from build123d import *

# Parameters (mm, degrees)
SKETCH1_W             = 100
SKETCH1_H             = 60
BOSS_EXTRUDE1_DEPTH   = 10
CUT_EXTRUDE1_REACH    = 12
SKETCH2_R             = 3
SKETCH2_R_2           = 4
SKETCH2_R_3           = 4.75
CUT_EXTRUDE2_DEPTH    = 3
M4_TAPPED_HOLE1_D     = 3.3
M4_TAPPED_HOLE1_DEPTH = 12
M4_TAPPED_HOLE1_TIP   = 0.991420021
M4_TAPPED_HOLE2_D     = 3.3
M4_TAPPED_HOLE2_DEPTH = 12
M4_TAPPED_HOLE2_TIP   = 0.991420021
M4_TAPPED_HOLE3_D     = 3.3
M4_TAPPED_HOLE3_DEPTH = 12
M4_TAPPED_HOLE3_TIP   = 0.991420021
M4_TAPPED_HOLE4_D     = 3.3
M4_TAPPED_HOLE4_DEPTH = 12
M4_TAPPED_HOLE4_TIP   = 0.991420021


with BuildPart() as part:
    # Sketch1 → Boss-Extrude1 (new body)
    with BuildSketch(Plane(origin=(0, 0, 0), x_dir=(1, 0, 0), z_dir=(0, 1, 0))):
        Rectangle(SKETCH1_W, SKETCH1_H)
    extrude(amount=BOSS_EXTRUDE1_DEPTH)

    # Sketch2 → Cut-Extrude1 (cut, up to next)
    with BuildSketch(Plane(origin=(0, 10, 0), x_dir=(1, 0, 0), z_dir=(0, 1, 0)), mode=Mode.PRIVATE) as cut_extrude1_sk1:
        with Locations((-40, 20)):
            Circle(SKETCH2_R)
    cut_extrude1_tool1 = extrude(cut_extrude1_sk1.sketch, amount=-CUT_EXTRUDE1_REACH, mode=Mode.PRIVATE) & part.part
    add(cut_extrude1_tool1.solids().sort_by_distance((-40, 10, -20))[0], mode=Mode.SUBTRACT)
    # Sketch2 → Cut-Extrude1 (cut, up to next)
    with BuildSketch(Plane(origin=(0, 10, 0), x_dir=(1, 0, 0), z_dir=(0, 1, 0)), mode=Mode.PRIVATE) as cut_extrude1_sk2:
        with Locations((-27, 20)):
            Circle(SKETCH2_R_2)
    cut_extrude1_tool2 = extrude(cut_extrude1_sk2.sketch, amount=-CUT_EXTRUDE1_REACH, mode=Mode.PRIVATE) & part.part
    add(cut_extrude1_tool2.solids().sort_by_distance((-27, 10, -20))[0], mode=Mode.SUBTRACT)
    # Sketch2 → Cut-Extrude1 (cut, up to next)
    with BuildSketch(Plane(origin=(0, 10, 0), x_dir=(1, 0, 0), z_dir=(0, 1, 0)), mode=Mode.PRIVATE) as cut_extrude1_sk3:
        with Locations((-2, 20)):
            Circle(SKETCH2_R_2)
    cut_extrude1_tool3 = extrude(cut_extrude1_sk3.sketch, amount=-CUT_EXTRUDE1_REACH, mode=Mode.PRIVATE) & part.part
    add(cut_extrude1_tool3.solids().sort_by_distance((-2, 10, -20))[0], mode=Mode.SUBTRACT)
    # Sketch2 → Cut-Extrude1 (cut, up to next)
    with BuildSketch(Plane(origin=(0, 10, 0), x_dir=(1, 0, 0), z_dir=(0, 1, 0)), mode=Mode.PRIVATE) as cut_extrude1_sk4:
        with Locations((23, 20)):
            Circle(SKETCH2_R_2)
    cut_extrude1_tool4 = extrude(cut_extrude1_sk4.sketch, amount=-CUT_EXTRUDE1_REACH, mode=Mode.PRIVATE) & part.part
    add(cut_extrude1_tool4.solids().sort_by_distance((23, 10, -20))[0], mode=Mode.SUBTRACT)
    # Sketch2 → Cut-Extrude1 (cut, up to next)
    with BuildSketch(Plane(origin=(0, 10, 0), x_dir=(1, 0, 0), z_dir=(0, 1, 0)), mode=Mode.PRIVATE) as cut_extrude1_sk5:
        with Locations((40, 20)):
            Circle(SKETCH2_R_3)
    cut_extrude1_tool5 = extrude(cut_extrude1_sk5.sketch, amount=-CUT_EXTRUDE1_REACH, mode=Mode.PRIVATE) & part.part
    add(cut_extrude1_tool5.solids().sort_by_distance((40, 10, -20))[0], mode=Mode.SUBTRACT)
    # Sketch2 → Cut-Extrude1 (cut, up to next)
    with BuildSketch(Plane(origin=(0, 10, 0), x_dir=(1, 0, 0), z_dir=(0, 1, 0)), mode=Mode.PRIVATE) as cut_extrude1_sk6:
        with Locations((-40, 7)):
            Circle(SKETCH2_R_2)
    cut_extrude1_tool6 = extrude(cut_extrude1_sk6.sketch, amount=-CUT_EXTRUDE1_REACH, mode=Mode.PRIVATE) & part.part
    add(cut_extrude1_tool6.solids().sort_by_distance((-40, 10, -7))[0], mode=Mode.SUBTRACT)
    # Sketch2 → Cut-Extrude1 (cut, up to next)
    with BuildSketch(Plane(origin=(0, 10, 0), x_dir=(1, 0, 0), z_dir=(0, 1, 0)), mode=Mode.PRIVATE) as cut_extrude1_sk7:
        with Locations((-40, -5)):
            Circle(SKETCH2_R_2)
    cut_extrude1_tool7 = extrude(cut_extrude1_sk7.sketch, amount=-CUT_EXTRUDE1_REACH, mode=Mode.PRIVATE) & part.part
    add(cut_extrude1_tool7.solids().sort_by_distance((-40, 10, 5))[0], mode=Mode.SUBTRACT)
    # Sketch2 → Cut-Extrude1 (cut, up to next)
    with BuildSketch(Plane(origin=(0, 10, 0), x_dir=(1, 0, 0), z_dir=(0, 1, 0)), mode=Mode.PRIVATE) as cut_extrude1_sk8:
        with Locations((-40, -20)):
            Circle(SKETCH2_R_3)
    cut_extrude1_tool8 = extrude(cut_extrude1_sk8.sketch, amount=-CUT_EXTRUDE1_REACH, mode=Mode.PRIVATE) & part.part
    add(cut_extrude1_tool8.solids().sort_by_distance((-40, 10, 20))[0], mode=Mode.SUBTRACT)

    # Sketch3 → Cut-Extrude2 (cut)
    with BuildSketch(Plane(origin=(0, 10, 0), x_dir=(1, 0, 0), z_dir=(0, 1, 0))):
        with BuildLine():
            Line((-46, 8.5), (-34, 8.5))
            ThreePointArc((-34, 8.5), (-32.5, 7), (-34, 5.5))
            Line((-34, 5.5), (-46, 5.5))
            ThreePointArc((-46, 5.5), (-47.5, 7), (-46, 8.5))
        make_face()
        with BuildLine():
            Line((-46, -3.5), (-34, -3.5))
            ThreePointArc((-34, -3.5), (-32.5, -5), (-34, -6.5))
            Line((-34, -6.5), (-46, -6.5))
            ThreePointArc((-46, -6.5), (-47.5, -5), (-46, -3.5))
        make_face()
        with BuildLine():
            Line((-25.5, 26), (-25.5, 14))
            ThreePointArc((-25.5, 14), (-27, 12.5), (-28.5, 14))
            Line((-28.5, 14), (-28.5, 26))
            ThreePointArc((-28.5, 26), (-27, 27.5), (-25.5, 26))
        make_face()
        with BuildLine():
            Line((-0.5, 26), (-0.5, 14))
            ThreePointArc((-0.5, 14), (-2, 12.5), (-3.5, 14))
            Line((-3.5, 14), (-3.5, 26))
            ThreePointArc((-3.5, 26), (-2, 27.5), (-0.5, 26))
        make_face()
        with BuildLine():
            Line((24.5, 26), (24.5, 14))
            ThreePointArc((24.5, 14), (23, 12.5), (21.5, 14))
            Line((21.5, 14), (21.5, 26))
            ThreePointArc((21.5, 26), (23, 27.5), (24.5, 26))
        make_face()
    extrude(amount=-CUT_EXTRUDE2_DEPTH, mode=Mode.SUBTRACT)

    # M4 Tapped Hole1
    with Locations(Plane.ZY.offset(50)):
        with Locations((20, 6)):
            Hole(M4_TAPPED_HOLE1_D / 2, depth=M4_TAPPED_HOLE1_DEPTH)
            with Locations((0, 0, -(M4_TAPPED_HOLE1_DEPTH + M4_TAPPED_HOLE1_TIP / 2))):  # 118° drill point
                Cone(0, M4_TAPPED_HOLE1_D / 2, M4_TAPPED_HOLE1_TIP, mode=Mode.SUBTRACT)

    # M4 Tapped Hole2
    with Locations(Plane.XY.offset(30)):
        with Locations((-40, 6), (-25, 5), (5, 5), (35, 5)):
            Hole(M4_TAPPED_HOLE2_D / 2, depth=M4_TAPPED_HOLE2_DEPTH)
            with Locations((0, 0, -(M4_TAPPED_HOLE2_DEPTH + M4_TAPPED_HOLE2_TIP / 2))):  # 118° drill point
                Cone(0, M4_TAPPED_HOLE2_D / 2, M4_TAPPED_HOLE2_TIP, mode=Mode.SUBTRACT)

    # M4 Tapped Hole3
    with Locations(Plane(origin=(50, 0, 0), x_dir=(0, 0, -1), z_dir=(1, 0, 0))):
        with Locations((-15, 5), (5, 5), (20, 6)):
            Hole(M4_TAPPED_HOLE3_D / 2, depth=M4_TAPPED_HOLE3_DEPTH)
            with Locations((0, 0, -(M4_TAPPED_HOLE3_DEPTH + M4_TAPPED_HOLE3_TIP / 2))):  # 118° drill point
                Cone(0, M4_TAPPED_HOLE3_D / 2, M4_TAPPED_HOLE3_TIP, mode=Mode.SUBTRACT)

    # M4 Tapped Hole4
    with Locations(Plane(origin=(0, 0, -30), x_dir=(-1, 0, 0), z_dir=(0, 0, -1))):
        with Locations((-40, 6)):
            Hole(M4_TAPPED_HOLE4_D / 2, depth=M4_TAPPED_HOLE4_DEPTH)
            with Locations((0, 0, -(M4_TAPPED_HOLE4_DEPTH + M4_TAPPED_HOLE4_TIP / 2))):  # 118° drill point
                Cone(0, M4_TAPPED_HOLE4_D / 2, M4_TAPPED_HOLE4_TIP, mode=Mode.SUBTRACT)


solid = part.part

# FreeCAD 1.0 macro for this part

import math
import FreeCAD as App
import Part
import Sketcher


def add_polygon(sketch, points):
    """Adds a closed chain of lines whose ends are joined by coincident constraints."""
    first, n = sketch.GeometryCount, len(points)
    for a, b in zip(points, points[1:] + points[:1]):
        sketch.addGeometry(Part.LineSegment(App.Vector(*a, 0), App.Vector(*b, 0)), False)
    for i in range(n):
        sketch.addConstraint(Sketcher.Constraint("Coincident", first + i, 2, first + (i + 1) % n, 1))

doc = App.newDocument("Part")
body = doc.addObject("PartDesign::Body", "Body")

# Sketch on XZ plane
sketch1 = doc.addObject("Sketcher::SketchObject", "Sketch")
body.addObject(sketch1)
sketch1.AttachmentSupport = (doc.XZ_Plane, [""])
sketch1.MapMode = "FlatFace"
add_polygon(sketch1, [(-50, -30), (-50, 30), (50, 30), (50, -30)])  # lines 0-3
sketch1.addConstraint(Sketcher.Constraint("Vertical", 0))
sketch1.addConstraint(Sketcher.Constraint("Horizontal", 1))
sketch1.addConstraint(Sketcher.Constraint("Vertical", 2))
sketch1.addConstraint(Sketcher.Constraint("Horizontal", 3))
sketch1.addConstraint(Sketcher.Constraint("Symmetric", 0, 2, 2, 2, -1, 1))
sketch1.addConstraint(Sketcher.Constraint("DistanceX", 1, 1, 1, 2, 100.0))
sketch1.addConstraint(Sketcher.Constraint("DistanceY", 0, 1, 0, 2, 60.0))
pad1 = doc.addObject("PartDesign::Pad", "Pad")
body.addObject(pad1)
pad1.Profile = sketch1
pad1.Length = 10
pad1.Reversed = True

# Sketch on XZ plane
sketch2 = doc.addObject("Sketcher::SketchObject", "Sketch001")
body.addObject(sketch2)
sketch2.AttachmentSupport = (doc.XZ_Plane, [""])
sketch2.MapMode = "FlatFace"
sketch2.AttachmentOffset = App.Placement(App.Vector(0, 0, -10), App.Rotation())
sketch2.addGeometry(Part.Circle(App.Vector(-40, -20, 0), App.Vector(0, 0, 1), 3), False)
sketch2.addConstraint(Sketcher.Constraint("Diameter", 0, 6.0))
sketch2.addConstraint(Sketcher.Constraint("DistanceX", 0, 3, -1, 1, 40.0))
sketch2.addConstraint(Sketcher.Constraint("DistanceY", 0, 3, -1, 1, 20.0))
pocket1 = doc.addObject("PartDesign::Pocket", "Pocket")
body.addObject(pocket1)
pocket1.Profile = sketch2
pocket1.Type = "UpToFirst"
pocket1.Reversed = True

# Sketch on XZ plane
sketch3 = doc.addObject("Sketcher::SketchObject", "Sketch002")
body.addObject(sketch3)
sketch3.AttachmentSupport = (doc.XZ_Plane, [""])
sketch3.MapMode = "FlatFace"
sketch3.AttachmentOffset = App.Placement(App.Vector(0, 0, -10), App.Rotation())
sketch3.addGeometry(Part.Circle(App.Vector(-27, -20, 0), App.Vector(0, 0, 1), 4), False)
sketch3.addConstraint(Sketcher.Constraint("Diameter", 0, 8.0))
sketch3.addConstraint(Sketcher.Constraint("DistanceX", 0, 3, -1, 1, 27.0))
sketch3.addConstraint(Sketcher.Constraint("DistanceY", 0, 3, -1, 1, 20.0))
pocket2 = doc.addObject("PartDesign::Pocket", "Pocket001")
body.addObject(pocket2)
pocket2.Profile = sketch3
pocket2.Type = "UpToFirst"
pocket2.Reversed = True

# Sketch on XZ plane
sketch4 = doc.addObject("Sketcher::SketchObject", "Sketch003")
body.addObject(sketch4)
sketch4.AttachmentSupport = (doc.XZ_Plane, [""])
sketch4.MapMode = "FlatFace"
sketch4.AttachmentOffset = App.Placement(App.Vector(0, 0, -10), App.Rotation())
sketch4.addGeometry(Part.Circle(App.Vector(-2, -20, 0), App.Vector(0, 0, 1), 4), False)
sketch4.addConstraint(Sketcher.Constraint("Diameter", 0, 8.0))
sketch4.addConstraint(Sketcher.Constraint("DistanceX", 0, 3, -1, 1, 2.0))
sketch4.addConstraint(Sketcher.Constraint("DistanceY", 0, 3, -1, 1, 20.0))
pocket3 = doc.addObject("PartDesign::Pocket", "Pocket002")
body.addObject(pocket3)
pocket3.Profile = sketch4
pocket3.Type = "UpToFirst"
pocket3.Reversed = True

# Sketch on XZ plane
sketch5 = doc.addObject("Sketcher::SketchObject", "Sketch004")
body.addObject(sketch5)
sketch5.AttachmentSupport = (doc.XZ_Plane, [""])
sketch5.MapMode = "FlatFace"
sketch5.AttachmentOffset = App.Placement(App.Vector(0, 0, -10), App.Rotation())
sketch5.addGeometry(Part.Circle(App.Vector(23, -20, 0), App.Vector(0, 0, 1), 4), False)
sketch5.addConstraint(Sketcher.Constraint("Diameter", 0, 8.0))
sketch5.addConstraint(Sketcher.Constraint("DistanceX", -1, 1, 0, 3, 23.0))
sketch5.addConstraint(Sketcher.Constraint("DistanceY", 0, 3, -1, 1, 20.0))
pocket4 = doc.addObject("PartDesign::Pocket", "Pocket003")
body.addObject(pocket4)
pocket4.Profile = sketch5
pocket4.Type = "UpToFirst"
pocket4.Reversed = True

# Sketch on XZ plane
sketch6 = doc.addObject("Sketcher::SketchObject", "Sketch005")
body.addObject(sketch6)
sketch6.AttachmentSupport = (doc.XZ_Plane, [""])
sketch6.MapMode = "FlatFace"
sketch6.AttachmentOffset = App.Placement(App.Vector(0, 0, -10), App.Rotation())
sketch6.addGeometry(Part.Circle(App.Vector(40, -20, 0), App.Vector(0, 0, 1), 4.8), False)
sketch6.addConstraint(Sketcher.Constraint("Diameter", 0, 9.5))
sketch6.addConstraint(Sketcher.Constraint("DistanceX", -1, 1, 0, 3, 40.0))
sketch6.addConstraint(Sketcher.Constraint("DistanceY", 0, 3, -1, 1, 20.0))
pocket5 = doc.addObject("PartDesign::Pocket", "Pocket004")
body.addObject(pocket5)
pocket5.Profile = sketch6
pocket5.Type = "UpToFirst"
pocket5.Reversed = True

# Sketch on XZ plane
sketch7 = doc.addObject("Sketcher::SketchObject", "Sketch006")
body.addObject(sketch7)
sketch7.AttachmentSupport = (doc.XZ_Plane, [""])
sketch7.MapMode = "FlatFace"
sketch7.AttachmentOffset = App.Placement(App.Vector(0, 0, -10), App.Rotation())
sketch7.addGeometry(Part.Circle(App.Vector(-40, -7, 0), App.Vector(0, 0, 1), 4), False)
sketch7.addConstraint(Sketcher.Constraint("Diameter", 0, 8.0))
sketch7.addConstraint(Sketcher.Constraint("DistanceX", 0, 3, -1, 1, 40.0))
sketch7.addConstraint(Sketcher.Constraint("DistanceY", 0, 3, -1, 1, 7.0))
pocket6 = doc.addObject("PartDesign::Pocket", "Pocket005")
body.addObject(pocket6)
pocket6.Profile = sketch7
pocket6.Type = "UpToFirst"
pocket6.Reversed = True

# Sketch on XZ plane
sketch8 = doc.addObject("Sketcher::SketchObject", "Sketch007")
body.addObject(sketch8)
sketch8.AttachmentSupport = (doc.XZ_Plane, [""])
sketch8.MapMode = "FlatFace"
sketch8.AttachmentOffset = App.Placement(App.Vector(0, 0, -10), App.Rotation())
sketch8.addGeometry(Part.Circle(App.Vector(-40, 5, 0), App.Vector(0, 0, 1), 4), False)
sketch8.addConstraint(Sketcher.Constraint("Diameter", 0, 8.0))
sketch8.addConstraint(Sketcher.Constraint("DistanceX", 0, 3, -1, 1, 40.0))
sketch8.addConstraint(Sketcher.Constraint("DistanceY", -1, 1, 0, 3, 5.0))
pocket7 = doc.addObject("PartDesign::Pocket", "Pocket006")
body.addObject(pocket7)
pocket7.Profile = sketch8
pocket7.Type = "UpToFirst"
pocket7.Reversed = True

# Sketch on XZ plane
sketch9 = doc.addObject("Sketcher::SketchObject", "Sketch008")
body.addObject(sketch9)
sketch9.AttachmentSupport = (doc.XZ_Plane, [""])
sketch9.MapMode = "FlatFace"
sketch9.AttachmentOffset = App.Placement(App.Vector(0, 0, -10), App.Rotation())
sketch9.addGeometry(Part.Circle(App.Vector(-40, 20, 0), App.Vector(0, 0, 1), 4.8), False)
sketch9.addConstraint(Sketcher.Constraint("Diameter", 0, 9.5))
sketch9.addConstraint(Sketcher.Constraint("DistanceX", 0, 3, -1, 1, 40.0))
sketch9.addConstraint(Sketcher.Constraint("DistanceY", -1, 1, 0, 3, 20.0))
pocket8 = doc.addObject("PartDesign::Pocket", "Pocket007")
body.addObject(pocket8)
pocket8.Profile = sketch9
pocket8.Type = "UpToFirst"
pocket8.Reversed = True

# Sketch on XZ plane
sketch10 = doc.addObject("Sketcher::SketchObject", "Sketch009")
body.addObject(sketch10)
sketch10.AttachmentSupport = (doc.XZ_Plane, [""])
sketch10.MapMode = "FlatFace"
sketch10.AttachmentOffset = App.Placement(App.Vector(0, 0, -10), App.Rotation())
sketch10.addGeometry(Part.LineSegment(App.Vector(-34, -8.5, 0), App.Vector(-46, -8.5, 0)), False)
sketch10.addGeometry(Part.ArcOfCircle(Part.Circle(App.Vector(-46, -7, 0), App.Vector(0, 0, 1), 1.5), math.radians(90), math.radians(270)), False)
sketch10.addGeometry(Part.LineSegment(App.Vector(-46, -5.5, 0), App.Vector(-34, -5.5, 0)), False)
sketch10.addGeometry(Part.ArcOfCircle(Part.Circle(App.Vector(-34, -7, 0), App.Vector(0, 0, 1), 1.5), math.radians(-90), math.radians(90)), False)
sketch10.addGeometry(Part.LineSegment(App.Vector(-34, 3.5, 0), App.Vector(-46, 3.5, 0)), False)
sketch10.addGeometry(Part.ArcOfCircle(Part.Circle(App.Vector(-46, 5, 0), App.Vector(0, 0, 1), 1.5), math.radians(90), math.radians(270)), False)
sketch10.addGeometry(Part.LineSegment(App.Vector(-46, 6.5, 0), App.Vector(-34, 6.5, 0)), False)
sketch10.addGeometry(Part.ArcOfCircle(Part.Circle(App.Vector(-34, 5, 0), App.Vector(0, 0, 1), 1.5), math.radians(-90), math.radians(90)), False)
sketch10.addGeometry(Part.LineSegment(App.Vector(-25.5, -14, 0), App.Vector(-25.5, -26, 0)), False)
sketch10.addGeometry(Part.ArcOfCircle(Part.Circle(App.Vector(-27, -26, 0), App.Vector(0, 0, 1), 1.5), math.radians(180), math.radians(360)), False)
sketch10.addGeometry(Part.LineSegment(App.Vector(-28.5, -26, 0), App.Vector(-28.5, -14, 0)), False)
sketch10.addGeometry(Part.ArcOfCircle(Part.Circle(App.Vector(-27, -14, 0), App.Vector(0, 0, 1), 1.5), math.radians(0), math.radians(180)), False)
sketch10.addGeometry(Part.LineSegment(App.Vector(-0.5, -14, 0), App.Vector(-0.5, -26, 0)), False)
sketch10.addGeometry(Part.ArcOfCircle(Part.Circle(App.Vector(-2, -26, 0), App.Vector(0, 0, 1), 1.5), math.radians(180), math.radians(360)), False)
sketch10.addGeometry(Part.LineSegment(App.Vector(-3.5, -26, 0), App.Vector(-3.5, -14, 0)), False)
sketch10.addGeometry(Part.ArcOfCircle(Part.Circle(App.Vector(-2, -14, 0), App.Vector(0, 0, 1), 1.5), math.radians(0), math.radians(180)), False)
sketch10.addGeometry(Part.LineSegment(App.Vector(24.5, -14, 0), App.Vector(24.5, -26, 0)), False)
sketch10.addGeometry(Part.ArcOfCircle(Part.Circle(App.Vector(23, -26, 0), App.Vector(0, 0, 1), 1.5), math.radians(180), math.radians(360)), False)
sketch10.addGeometry(Part.LineSegment(App.Vector(21.5, -26, 0), App.Vector(21.5, -14, 0)), False)
sketch10.addGeometry(Part.ArcOfCircle(Part.Circle(App.Vector(23, -14, 0), App.Vector(0, 0, 1), 1.5), math.radians(0), math.radians(180)), False)
sketch10.addConstraint(Sketcher.Constraint("Tangent", 0, 2, 1, 2))
sketch10.addConstraint(Sketcher.Constraint("Tangent", 1, 1, 2, 1))
sketch10.addConstraint(Sketcher.Constraint("Tangent", 2, 2, 3, 2))
sketch10.addConstraint(Sketcher.Constraint("Tangent", 3, 1, 0, 1))
sketch10.addConstraint(Sketcher.Constraint("Tangent", 4, 2, 5, 2))
sketch10.addConstraint(Sketcher.Constraint("Tangent", 5, 1, 6, 1))
sketch10.addConstraint(Sketcher.Constraint("Tangent", 6, 2, 7, 2))
sketch10.addConstraint(Sketcher.Constraint("Tangent", 7, 1, 4, 1))
sketch10.addConstraint(Sketcher.Constraint("Tangent", 8, 2, 9, 2))
sketch10.addConstraint(Sketcher.Constraint("Tangent", 9, 1, 10, 1))
sketch10.addConstraint(Sketcher.Constraint("Tangent", 10, 2, 11, 2))
sketch10.addConstraint(Sketcher.Constraint("Tangent", 11, 1, 8, 1))
sketch10.addConstraint(Sketcher.Constraint("Tangent", 12, 2, 13, 2))
sketch10.addConstraint(Sketcher.Constraint("Tangent", 13, 1, 14, 1))
sketch10.addConstraint(Sketcher.Constraint("Tangent", 14, 2, 15, 2))
sketch10.addConstraint(Sketcher.Constraint("Tangent", 15, 1, 12, 1))
sketch10.addConstraint(Sketcher.Constraint("Tangent", 16, 2, 17, 2))
sketch10.addConstraint(Sketcher.Constraint("Tangent", 17, 1, 18, 1))
sketch10.addConstraint(Sketcher.Constraint("Tangent", 18, 2, 19, 2))
sketch10.addConstraint(Sketcher.Constraint("Tangent", 19, 1, 16, 1))
sketch10.addConstraint(Sketcher.Constraint("Horizontal", 0))
sketch10.addConstraint(Sketcher.Constraint("Horizontal", 2))
sketch10.addConstraint(Sketcher.Constraint("Horizontal", 4))
sketch10.addConstraint(Sketcher.Constraint("Horizontal", 6))
sketch10.addConstraint(Sketcher.Constraint("Vertical", 8))
sketch10.addConstraint(Sketcher.Constraint("Vertical", 10))
sketch10.addConstraint(Sketcher.Constraint("Vertical", 12))
sketch10.addConstraint(Sketcher.Constraint("Vertical", 14))
sketch10.addConstraint(Sketcher.Constraint("Vertical", 16))
sketch10.addConstraint(Sketcher.Constraint("Vertical", 18))
sketch10.addConstraint(Sketcher.Constraint("Equal", 3, 5))
sketch10.addConstraint(Sketcher.Constraint("Equal", 7, 9))
sketch10.addConstraint(Sketcher.Constraint("Equal", 11, 13))
sketch10.addConstraint(Sketcher.Constraint("Equal", 15, 17))
sketch10.addConstraint(Sketcher.Constraint("Horizontal", 9, 3, 13, 3))
sketch10.addConstraint(Sketcher.Constraint("Horizontal", 11, 3, 15, 3))
sketch10.addConstraint(Sketcher.Constraint("Horizontal", 13, 3, 17, 3))
sketch10.addConstraint(Sketcher.Constraint("Horizontal", 15, 3, 19, 3))
sketch10.addConstraint(Sketcher.Constraint("Vertical", 1, 3, 5, 3))
sketch10.addConstraint(Sketcher.Constraint("Vertical", 3, 3, 7, 3))
sketch10.addConstraint(Sketcher.Constraint("Equal", 6, 8))
sketch10.addConstraint(Sketcher.Constraint("Radius", 1, 1.5))
sketch10.addConstraint(Sketcher.Constraint("DistanceX", 0, 2, 0, 1, 12.0))
sketch10.addConstraint(Sketcher.Constraint("DistanceX", 1, 3, -1, 1, 46.0))
sketch10.addConstraint(Sketcher.Constraint("DistanceY", 1, 3, -1, 1, 7.0))
sketch10.addConstraint(Sketcher.Constraint("DistanceY", -1, 1, 5, 3, 5.0))
sketch10.addConstraint(Sketcher.Constraint("DistanceX", 9, 3, -1, 1, 27.0))
sketch10.addConstraint(Sketcher.Constraint("DistanceY", 9, 3, -1, 1, 26.0))
sketch10.addConstraint(Sketcher.Constraint("DistanceX", 13, 3, -1, 1, 2.0))
sketch10.addConstraint(Sketcher.Constraint("DistanceX", -1, 1, 17, 3, 23.0))
pocket9 = doc.addObject("PartDesign::Pocket", "Pocket008")
body.addObject(pocket9)
pocket9.Profile = sketch10
pocket9.Length = 3
pocket9.Reversed = True

# Sketch on YZ plane
sketch11 = doc.addObject("Sketcher::SketchObject", "Sketch010")
body.addObject(sketch11)
sketch11.AttachmentSupport = (doc.YZ_Plane, [""])
sketch11.MapMode = "FlatFace"
sketch11.AttachmentOffset = App.Placement(App.Vector(0, 0, -50), App.Rotation())
sketch11.addGeometry(Part.Circle(App.Vector(6, 20, 0), App.Vector(0, 0, 1), 1.6), False)
sketch11.addConstraint(Sketcher.Constraint("Diameter", 0, 3.3))
sketch11.addConstraint(Sketcher.Constraint("DistanceX", -1, 1, 0, 3, 6.0))
sketch11.addConstraint(Sketcher.Constraint("DistanceY", -1, 1, 0, 3, 20.0))
doc.recompute()
hole = doc.addObject("PartDesign::Hole", "Hole")
body.addObject(hole)
hole.Profile = sketch11
hole.ThreadType = "None"
hole.Diameter = 3.3
hole.DepthType = "Dimension"
hole.Depth = 12
hole.DrillPoint = "Angled"
hole.DrillPointAngle = 118
hole.Reversed = True

# Sketch on XY plane
sketch12 = doc.addObject("Sketcher::SketchObject", "Sketch011")
body.addObject(sketch12)
sketch12.AttachmentSupport = (doc.XY_Plane, [""])
sketch12.MapMode = "FlatFace"
sketch12.AttachmentOffset = App.Placement(App.Vector(0, 0, 30), App.Rotation())
sketch12.addGeometry(Part.Circle(App.Vector(-40, 6, 0), App.Vector(0, 0, 1), 1.6), False)
sketch12.addGeometry(Part.Circle(App.Vector(-25, 5, 0), App.Vector(0, 0, 1), 1.6), False)
sketch12.addGeometry(Part.Circle(App.Vector(5, 5, 0), App.Vector(0, 0, 1), 1.6), False)
sketch12.addGeometry(Part.Circle(App.Vector(35, 5, 0), App.Vector(0, 0, 1), 1.6), False)
sketch12.addConstraint(Sketcher.Constraint("Equal", 0, 1))
sketch12.addConstraint(Sketcher.Constraint("Equal", 1, 2))
sketch12.addConstraint(Sketcher.Constraint("Equal", 2, 3))
sketch12.addConstraint(Sketcher.Constraint("Horizontal", 1, 3, 2, 3))
sketch12.addConstraint(Sketcher.Constraint("Horizontal", 2, 3, 3, 3))
sketch12.addConstraint(Sketcher.Constraint("Diameter", 0, 3.3))
sketch12.addConstraint(Sketcher.Constraint("DistanceX", 0, 3, -1, 1, 40.0))
sketch12.addConstraint(Sketcher.Constraint("DistanceY", -1, 1, 0, 3, 6.0))
sketch12.addConstraint(Sketcher.Constraint("DistanceX", 1, 3, -1, 1, 25.0))
sketch12.addConstraint(Sketcher.Constraint("DistanceY", -1, 1, 1, 3, 5.0))
sketch12.addConstraint(Sketcher.Constraint("DistanceX", -1, 1, 2, 3, 5.0))
sketch12.addConstraint(Sketcher.Constraint("DistanceX", -1, 1, 3, 3, 35.0))
doc.recompute()
hole2 = doc.addObject("PartDesign::Hole", "Hole001")
body.addObject(hole2)
hole2.Profile = sketch12
hole2.ThreadType = "None"
hole2.Diameter = 3.3
hole2.DepthType = "Dimension"
hole2.Depth = 12
hole2.DrillPoint = "Angled"
hole2.DrillPointAngle = 118

# Sketch on YZ plane
sketch13 = doc.addObject("Sketcher::SketchObject", "Sketch012")
body.addObject(sketch13)
sketch13.AttachmentSupport = (doc.YZ_Plane, [""])
sketch13.MapMode = "FlatFace"
sketch13.AttachmentOffset = App.Placement(App.Vector(0, 0, 50), App.Rotation())
sketch13.addGeometry(Part.Circle(App.Vector(5, 15, 0), App.Vector(0, 0, 1), 1.6), False)
sketch13.addGeometry(Part.Circle(App.Vector(5, -5, 0), App.Vector(0, 0, 1), 1.6), False)
sketch13.addGeometry(Part.Circle(App.Vector(6, -20, 0), App.Vector(0, 0, 1), 1.6), False)
sketch13.addConstraint(Sketcher.Constraint("Equal", 0, 1))
sketch13.addConstraint(Sketcher.Constraint("Equal", 1, 2))
sketch13.addConstraint(Sketcher.Constraint("Vertical", 0, 3, 1, 3))
sketch13.addConstraint(Sketcher.Constraint("Diameter", 0, 3.3))
sketch13.addConstraint(Sketcher.Constraint("DistanceX", -1, 1, 0, 3, 5.0))
sketch13.addConstraint(Sketcher.Constraint("DistanceY", -1, 1, 0, 3, 15.0))
sketch13.addConstraint(Sketcher.Constraint("DistanceY", 1, 3, -1, 1, 5.0))
sketch13.addConstraint(Sketcher.Constraint("DistanceX", -1, 1, 2, 3, 6.0))
sketch13.addConstraint(Sketcher.Constraint("DistanceY", 2, 3, -1, 1, 20.0))
doc.recompute()
hole3 = doc.addObject("PartDesign::Hole", "Hole002")
body.addObject(hole3)
hole3.Profile = sketch13
hole3.ThreadType = "None"
hole3.Diameter = 3.3
hole3.DepthType = "Dimension"
hole3.Depth = 12
hole3.DrillPoint = "Angled"
hole3.DrillPointAngle = 118

# Sketch on XY plane
sketch14 = doc.addObject("Sketcher::SketchObject", "Sketch013")
body.addObject(sketch14)
sketch14.AttachmentSupport = (doc.XY_Plane, [""])
sketch14.MapMode = "FlatFace"
sketch14.AttachmentOffset = App.Placement(App.Vector(0, 0, -30), App.Rotation())
sketch14.addGeometry(Part.Circle(App.Vector(40, 6, 0), App.Vector(0, 0, 1), 1.6), False)
sketch14.addConstraint(Sketcher.Constraint("Diameter", 0, 3.3))
sketch14.addConstraint(Sketcher.Constraint("DistanceX", -1, 1, 0, 3, 40.0))
sketch14.addConstraint(Sketcher.Constraint("DistanceY", -1, 1, 0, 3, 6.0))
doc.recompute()
hole4 = doc.addObject("PartDesign::Hole", "Hole003")
body.addObject(hole4)
hole4.Profile = sketch14
hole4.ThreadType = "None"
hole4.Diameter = 3.3
hole4.DepthType = "Dimension"
hole4.Depth = 12
hole4.DrillPoint = "Angled"
hole4.DrillPointAngle = 118
hole4.Reversed = True

doc.recompute()
